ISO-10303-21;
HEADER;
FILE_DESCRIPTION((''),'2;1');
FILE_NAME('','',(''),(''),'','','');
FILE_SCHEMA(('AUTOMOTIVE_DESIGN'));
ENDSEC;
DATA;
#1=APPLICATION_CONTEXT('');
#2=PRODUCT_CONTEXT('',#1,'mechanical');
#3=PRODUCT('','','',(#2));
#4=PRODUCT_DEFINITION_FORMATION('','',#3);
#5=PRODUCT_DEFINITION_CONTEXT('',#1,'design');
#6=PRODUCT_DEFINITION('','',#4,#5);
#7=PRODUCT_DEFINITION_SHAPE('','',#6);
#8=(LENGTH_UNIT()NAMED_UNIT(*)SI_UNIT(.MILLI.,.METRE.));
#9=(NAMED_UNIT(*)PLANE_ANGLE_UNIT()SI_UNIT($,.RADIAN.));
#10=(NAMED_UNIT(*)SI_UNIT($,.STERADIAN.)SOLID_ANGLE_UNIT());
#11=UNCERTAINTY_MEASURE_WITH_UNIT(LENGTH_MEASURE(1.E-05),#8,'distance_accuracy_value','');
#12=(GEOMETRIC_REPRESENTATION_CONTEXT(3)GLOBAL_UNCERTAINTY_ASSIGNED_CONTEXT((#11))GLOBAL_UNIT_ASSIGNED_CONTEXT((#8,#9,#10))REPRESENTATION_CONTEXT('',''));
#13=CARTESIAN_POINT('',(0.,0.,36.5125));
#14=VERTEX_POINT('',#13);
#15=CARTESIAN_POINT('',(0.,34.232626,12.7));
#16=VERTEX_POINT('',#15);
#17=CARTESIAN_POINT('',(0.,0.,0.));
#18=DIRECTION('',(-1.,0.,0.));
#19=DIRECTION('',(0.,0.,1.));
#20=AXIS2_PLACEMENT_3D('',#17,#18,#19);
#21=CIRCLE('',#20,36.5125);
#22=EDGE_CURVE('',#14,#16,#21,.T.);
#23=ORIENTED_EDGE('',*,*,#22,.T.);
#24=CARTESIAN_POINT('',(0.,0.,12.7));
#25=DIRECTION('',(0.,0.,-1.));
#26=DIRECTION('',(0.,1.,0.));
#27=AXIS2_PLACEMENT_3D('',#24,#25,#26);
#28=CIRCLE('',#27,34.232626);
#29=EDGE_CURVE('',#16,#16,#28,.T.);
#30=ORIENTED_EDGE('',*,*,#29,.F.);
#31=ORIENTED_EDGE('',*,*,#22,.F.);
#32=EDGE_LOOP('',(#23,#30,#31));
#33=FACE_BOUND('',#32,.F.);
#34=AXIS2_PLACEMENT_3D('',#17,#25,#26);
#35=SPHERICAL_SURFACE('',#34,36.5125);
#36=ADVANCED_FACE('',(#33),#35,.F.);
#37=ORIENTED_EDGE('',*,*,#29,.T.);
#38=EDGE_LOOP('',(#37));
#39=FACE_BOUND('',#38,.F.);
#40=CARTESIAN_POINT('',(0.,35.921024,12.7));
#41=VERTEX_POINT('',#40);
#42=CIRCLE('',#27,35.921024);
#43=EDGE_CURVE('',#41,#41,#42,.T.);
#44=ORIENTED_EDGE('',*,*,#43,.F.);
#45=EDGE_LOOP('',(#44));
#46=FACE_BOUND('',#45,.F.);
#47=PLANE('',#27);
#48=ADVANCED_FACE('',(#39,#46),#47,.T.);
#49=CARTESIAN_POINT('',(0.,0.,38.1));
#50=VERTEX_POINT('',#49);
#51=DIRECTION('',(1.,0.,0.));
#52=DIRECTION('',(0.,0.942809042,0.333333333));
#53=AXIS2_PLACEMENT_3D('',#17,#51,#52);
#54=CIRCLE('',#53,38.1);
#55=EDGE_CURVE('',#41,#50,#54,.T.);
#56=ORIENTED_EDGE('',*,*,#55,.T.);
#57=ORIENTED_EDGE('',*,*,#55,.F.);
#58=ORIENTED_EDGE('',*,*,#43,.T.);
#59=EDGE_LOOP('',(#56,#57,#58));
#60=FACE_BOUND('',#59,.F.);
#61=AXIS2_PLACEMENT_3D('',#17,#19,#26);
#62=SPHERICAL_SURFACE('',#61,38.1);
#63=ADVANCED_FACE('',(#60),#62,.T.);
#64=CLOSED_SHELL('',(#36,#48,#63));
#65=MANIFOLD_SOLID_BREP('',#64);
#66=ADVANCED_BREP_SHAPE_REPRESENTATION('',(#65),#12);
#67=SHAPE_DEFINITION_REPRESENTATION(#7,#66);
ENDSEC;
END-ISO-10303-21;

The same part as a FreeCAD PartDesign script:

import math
import FreeCAD as App
import Part
import Sketcher
from FreeCAD import Vector
Q = App.Units.Quantity

doc = App.newDocument("Part")
body = doc.addObject("PartDesign::Body", "Body")

# Sketch on YZ plane
sketch1 = body.newObject("Sketcher::SketchObject", "Sketch")
sketch1.AttachmentSupport = (doc.getObject("YZ_Plane"), [""])
sketch1.MapMode = "FlatFace"
sketch1.addGeometry(Part.LineSegment(Vector(0, 38.1, 0), Vector(0, 36.5, 0)), False)
sketch1.addGeometry(Part.ArcOfCircle(Part.Circle(Vector(0, 0, 0), Vector(0, 0, 1), 36.5), math.radians(20), math.radians(90)), False)
sketch1.addGeometry(Part.LineSegment(Vector(34.2, 12.7, 0), Vector(35.9, 12.7, 0)), False)
sketch1.addGeometry(Part.ArcOfCircle(Part.Circle(Vector(0, 0, 0), Vector(0, 0, 1), 38.1), math.radians(19), math.radians(90)), False)
sketch1.addConstraint(Sketcher.Constraint("Coincident", 0, 2, 1, 2))
sketch1.addConstraint(Sketcher.Constraint("Coincident", 1, 1, 2, 1))
sketch1.addConstraint(Sketcher.Constraint("Coincident", 2, 2, 3, 1))
sketch1.addConstraint(Sketcher.Constraint("Coincident", 3, 2, 0, 1))
sketch1.addConstraint(Sketcher.Constraint("Vertical", 0))
sketch1.addConstraint(Sketcher.Constraint("Horizontal", 2))
sketch1.addConstraint(Sketcher.Constraint("Coincident", 1, 3, -1, 1))
sketch1.addConstraint(Sketcher.Constraint("Coincident", 3, 3, -1, 1))
sketch1.addConstraint(Sketcher.Constraint("PointOnObject", 0, 2, -2))
sketch1.addConstraint(Sketcher.Constraint("Radius", 3, Q("1.5 in")))
sketch1.addConstraint(Sketcher.Constraint("Radius", 1, Q("1.4375 in")))
sketch1.addConstraint(Sketcher.Constraint("DistanceY", 1, 1, 3, 2, Q("1 in")))
revolution = body.newObject("PartDesign::Revolution", "Revolution")
revolution.Profile = sketch1
revolution.ReferenceAxis = (sketch1, ["V_Axis"])
revolution.Angle = 360

doc.recompute()
